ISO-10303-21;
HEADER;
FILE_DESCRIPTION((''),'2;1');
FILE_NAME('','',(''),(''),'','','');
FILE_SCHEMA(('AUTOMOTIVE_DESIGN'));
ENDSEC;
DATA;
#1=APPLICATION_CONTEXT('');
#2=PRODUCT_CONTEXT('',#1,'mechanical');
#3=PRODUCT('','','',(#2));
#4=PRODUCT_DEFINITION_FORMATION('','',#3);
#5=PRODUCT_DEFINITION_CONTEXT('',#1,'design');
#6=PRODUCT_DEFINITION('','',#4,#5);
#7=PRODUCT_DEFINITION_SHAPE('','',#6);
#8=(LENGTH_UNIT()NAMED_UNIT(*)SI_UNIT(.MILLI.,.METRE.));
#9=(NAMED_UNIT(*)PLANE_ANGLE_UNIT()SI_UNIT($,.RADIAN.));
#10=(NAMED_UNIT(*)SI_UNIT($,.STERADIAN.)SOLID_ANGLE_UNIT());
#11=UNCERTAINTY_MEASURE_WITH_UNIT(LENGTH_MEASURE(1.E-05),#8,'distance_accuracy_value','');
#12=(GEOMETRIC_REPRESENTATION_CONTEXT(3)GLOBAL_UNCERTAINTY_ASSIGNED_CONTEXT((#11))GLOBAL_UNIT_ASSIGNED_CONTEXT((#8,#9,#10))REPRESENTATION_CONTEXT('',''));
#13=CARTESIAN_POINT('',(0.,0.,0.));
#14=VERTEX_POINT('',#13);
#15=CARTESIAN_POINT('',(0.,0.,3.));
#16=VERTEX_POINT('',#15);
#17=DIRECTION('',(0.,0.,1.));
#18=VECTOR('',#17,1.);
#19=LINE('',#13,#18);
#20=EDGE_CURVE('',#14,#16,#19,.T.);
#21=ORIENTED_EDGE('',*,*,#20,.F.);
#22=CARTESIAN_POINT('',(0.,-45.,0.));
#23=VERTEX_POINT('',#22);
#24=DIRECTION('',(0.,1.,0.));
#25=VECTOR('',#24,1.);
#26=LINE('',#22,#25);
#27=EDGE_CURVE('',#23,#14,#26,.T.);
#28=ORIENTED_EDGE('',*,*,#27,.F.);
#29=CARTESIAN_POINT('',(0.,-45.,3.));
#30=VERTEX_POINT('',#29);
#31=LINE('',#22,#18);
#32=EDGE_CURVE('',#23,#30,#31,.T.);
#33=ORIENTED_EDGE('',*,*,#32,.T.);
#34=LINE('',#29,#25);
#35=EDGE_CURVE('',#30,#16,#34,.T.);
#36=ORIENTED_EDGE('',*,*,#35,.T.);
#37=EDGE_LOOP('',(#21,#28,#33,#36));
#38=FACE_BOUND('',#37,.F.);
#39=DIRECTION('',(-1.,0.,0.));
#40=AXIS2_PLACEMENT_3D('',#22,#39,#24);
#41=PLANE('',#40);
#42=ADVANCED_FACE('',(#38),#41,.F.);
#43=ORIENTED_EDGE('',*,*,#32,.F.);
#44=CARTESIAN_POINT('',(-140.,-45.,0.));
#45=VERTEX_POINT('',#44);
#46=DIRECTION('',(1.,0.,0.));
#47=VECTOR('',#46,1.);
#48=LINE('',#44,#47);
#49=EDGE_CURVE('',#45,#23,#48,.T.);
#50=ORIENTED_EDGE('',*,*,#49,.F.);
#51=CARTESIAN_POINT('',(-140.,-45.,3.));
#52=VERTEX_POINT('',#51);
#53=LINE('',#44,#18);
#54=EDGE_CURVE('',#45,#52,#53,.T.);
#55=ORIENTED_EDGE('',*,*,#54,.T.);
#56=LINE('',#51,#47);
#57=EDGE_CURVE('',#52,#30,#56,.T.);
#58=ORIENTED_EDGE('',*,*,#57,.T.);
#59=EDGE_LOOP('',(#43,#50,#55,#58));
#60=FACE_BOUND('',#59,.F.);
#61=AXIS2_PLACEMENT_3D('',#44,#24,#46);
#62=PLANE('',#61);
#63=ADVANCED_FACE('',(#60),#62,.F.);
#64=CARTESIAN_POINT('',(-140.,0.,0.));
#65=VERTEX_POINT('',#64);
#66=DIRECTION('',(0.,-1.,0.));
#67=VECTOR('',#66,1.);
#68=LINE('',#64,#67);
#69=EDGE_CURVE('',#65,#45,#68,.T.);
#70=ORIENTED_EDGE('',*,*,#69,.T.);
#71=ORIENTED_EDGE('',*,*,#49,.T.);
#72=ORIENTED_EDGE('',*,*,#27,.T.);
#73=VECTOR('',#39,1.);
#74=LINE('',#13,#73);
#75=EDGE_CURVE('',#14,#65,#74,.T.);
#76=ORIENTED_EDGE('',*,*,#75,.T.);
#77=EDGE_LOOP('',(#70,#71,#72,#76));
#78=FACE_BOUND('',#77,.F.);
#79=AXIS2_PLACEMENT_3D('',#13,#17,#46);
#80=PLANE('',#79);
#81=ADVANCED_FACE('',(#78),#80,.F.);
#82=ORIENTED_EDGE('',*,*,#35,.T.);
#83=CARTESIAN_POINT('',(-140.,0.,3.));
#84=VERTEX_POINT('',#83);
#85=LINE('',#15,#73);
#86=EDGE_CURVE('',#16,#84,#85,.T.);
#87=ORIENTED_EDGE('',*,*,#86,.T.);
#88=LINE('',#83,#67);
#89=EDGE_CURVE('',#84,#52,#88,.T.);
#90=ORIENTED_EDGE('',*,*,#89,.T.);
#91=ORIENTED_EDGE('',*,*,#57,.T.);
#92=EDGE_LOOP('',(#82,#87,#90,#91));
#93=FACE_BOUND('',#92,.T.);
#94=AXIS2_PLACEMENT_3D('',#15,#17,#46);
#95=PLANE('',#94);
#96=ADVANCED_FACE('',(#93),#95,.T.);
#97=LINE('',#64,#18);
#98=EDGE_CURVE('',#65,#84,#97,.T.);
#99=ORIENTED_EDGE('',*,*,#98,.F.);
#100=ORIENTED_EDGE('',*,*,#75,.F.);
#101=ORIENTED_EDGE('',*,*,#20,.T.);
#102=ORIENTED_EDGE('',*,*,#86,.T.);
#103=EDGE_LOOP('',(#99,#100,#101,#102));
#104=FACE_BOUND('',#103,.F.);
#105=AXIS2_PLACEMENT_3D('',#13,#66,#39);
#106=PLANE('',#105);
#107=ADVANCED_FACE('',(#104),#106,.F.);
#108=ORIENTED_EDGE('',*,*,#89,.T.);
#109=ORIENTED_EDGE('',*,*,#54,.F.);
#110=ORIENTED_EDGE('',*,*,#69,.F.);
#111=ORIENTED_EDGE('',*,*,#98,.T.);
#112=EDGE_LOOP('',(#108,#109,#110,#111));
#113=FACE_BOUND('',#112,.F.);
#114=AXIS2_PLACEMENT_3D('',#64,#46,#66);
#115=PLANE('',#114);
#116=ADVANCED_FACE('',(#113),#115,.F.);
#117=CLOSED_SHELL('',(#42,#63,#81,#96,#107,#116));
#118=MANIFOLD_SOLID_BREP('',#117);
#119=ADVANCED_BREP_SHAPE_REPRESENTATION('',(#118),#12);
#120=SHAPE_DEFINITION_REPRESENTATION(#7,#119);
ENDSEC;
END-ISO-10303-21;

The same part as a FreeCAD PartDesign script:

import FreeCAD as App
import Part
import Sketcher
from FreeCAD import Vector
Q = App.Units.Quantity

doc = App.newDocument("Part")
params = doc.addObject("Spreadsheet::Sheet", "Params")
for row, (alias, value) in enumerate([
    ("sketch1_width", "140 mm"),
    ("sketch1_height", "45 mm"),
    ("pad1_length", "3 mm"),
], start=1):
    params.set(f"A{row}", alias)
    params.set(f"B{row}", "=" + value)
    params.setAlias(f"B{row}", alias)

body = doc.addObject("PartDesign::Body", "Body")

# Sketch on XY plane
sketch1 = body.newObject("Sketcher::SketchObject", "Sketch")
sketch1.AttachmentSupport = (doc.getObject("XY_Plane"), [""])
sketch1.MapMode = "FlatFace"
sketch1.addGeometry([
    Part.LineSegment(Vector(0, -45, 0), Vector(0, 0, 0)),
    Part.LineSegment(Vector(0, 0, 0), Vector(-140, 0, 0)),
    Part.LineSegment(Vector(-140, 0, 0), Vector(-140, -45, 0)),
    Part.LineSegment(Vector(-140, -45, 0), Vector(0, -45, 0)),
], False)
sketch1.addConstraint([
    Sketcher.Constraint("Coincident", 0, 2, 1, 1),
    Sketcher.Constraint("Coincident", 1, 2, 2, 1),
    Sketcher.Constraint("Coincident", 2, 2, 3, 1),
    Sketcher.Constraint("Coincident", 3, 2, 0, 1),
    Sketcher.Constraint("Vertical", 0),
    Sketcher.Constraint("Horizontal", 1),
    Sketcher.Constraint("Vertical", 2),
    Sketcher.Constraint("Horizontal", 3),
    Sketcher.Constraint("Coincident", 0, 2, -1, 1),
    Sketcher.Constraint("DistanceX", 1, 2, 1, 1, Q("140 mm")),
    Sketcher.Constraint("DistanceY", 0, 1, 0, 2, Q("45 mm")),
])
sketch1.setExpression("Constraints[9]", "Params.sketch1_width")
sketch1.setExpression("Constraints[10]", "Params.sketch1_height")
pad1 = body.newObject("PartDesign::Pad", "Pad")
pad1.Profile = sketch1
pad1.setExpression("Length", "Params.pad1_length")

doc.recompute()
